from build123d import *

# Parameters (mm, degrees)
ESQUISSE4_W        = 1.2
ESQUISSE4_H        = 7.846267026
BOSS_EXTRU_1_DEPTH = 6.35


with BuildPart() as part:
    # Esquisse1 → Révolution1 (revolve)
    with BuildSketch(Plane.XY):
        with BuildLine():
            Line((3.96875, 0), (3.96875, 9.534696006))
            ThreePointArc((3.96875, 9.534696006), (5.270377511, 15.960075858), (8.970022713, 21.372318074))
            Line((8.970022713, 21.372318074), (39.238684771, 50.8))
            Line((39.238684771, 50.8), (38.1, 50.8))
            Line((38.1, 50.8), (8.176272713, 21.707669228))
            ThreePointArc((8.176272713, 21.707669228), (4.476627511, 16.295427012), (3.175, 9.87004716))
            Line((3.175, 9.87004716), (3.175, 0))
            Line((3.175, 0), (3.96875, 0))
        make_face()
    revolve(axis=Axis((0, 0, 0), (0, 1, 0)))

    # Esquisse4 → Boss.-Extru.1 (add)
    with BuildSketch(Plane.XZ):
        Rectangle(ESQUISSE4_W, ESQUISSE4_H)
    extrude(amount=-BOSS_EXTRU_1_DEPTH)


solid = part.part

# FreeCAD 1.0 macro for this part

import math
import FreeCAD as App
import Part
import Sketcher
from FreeCAD import Vector
Q = App.Units.Quantity

doc = App.newDocument("Part")
body = doc.addObject("PartDesign::Body", "Body")

sketch1 = body.newObject("Sketcher::SketchObject", "Sketch")
sketch1.AttachmentSupport = (doc.getObject("XY_Plane"), [""])
sketch1.MapMode = "FlatFace"
sketch1.addGeometry([
    Part.LineSegment(Vector(4, 0, 0), Vector(4, 9.5, 0)),
    Part.ArcOfCircle(Part.Circle(Vector(20.5, 9.5, 0), Vector(0, 0, 1), 16.5), math.radians(134), math.radians(180)),
    Part.LineSegment(Vector(9, 21.4, 0), Vector(39.2, 50.8, 0)),
    Part.LineSegment(Vector(39.2, 50.8, 0), Vector(38.1, 50.8, 0)),
    Part.LineSegment(Vector(38.1, 50.8, 0), Vector(8.2, 21.7, 0)),
    Part.ArcOfCircle(Part.Circle(Vector(19.7, 9.9, 0), Vector(0, 0, 1), 16.5), math.radians(134), math.radians(180)),
    Part.LineSegment(Vector(3.2, 9.9, 0), Vector(3.2, 0, 0)),
    Part.LineSegment(Vector(3.2, 0, 0), Vector(4, 0, 0)),
], False)
sketch1.addConstraint([
    Sketcher.Constraint("Tangent", 0, 2, 1, 2),
    Sketcher.Constraint("Tangent", 1, 1, 2, 1),
    Sketcher.Constraint("Coincident", 2, 2, 3, 1),
    Sketcher.Constraint("Coincident", 3, 2, 4, 1),
    Sketcher.Constraint("Tangent", 4, 2, 5, 1),
    Sketcher.Constraint("Tangent", 5, 2, 6, 1),
    Sketcher.Constraint("Coincident", 6, 2, 7, 1),
    Sketcher.Constraint("Coincident", 7, 2, 0, 1),
    Sketcher.Constraint("Vertical", 0),
    Sketcher.Constraint("Horizontal", 3),
    Sketcher.Constraint("Vertical", 6),
    Sketcher.Constraint("Horizontal", 7),
    Sketcher.Constraint("Equal", 1, 5),
    Sketcher.Constraint("PointOnObject", 6, 2, -1),
    Sketcher.Constraint("Parallel", 2, 4),
    Sketcher.Constraint("Radius", 1, Q("0.65 in")),
    Sketcher.Constraint("DistanceY", -1, 1, 2, 2, Q("2 in")),
    Sketcher.Constraint("DistanceX", -1, 1, 3, 2, Q("1.5 in")),
    Sketcher.Constraint("DistanceX", 7, 1, 7, 2, Q("0.03125 in")),
    Sketcher.Constraint("DistanceX", -1, 1, 5, 3, Q("0.775 in")),
    Sketcher.Constraint("Distance", 2, Q("42.215878 mm")),
    Sketcher.Constraint("DistanceX", 3, 2, 3, 1, Q("1.138685 mm")),
])
revolution = body.newObject("PartDesign::Revolution", "Revolution")
revolution.Profile = sketch1
revolution.ReferenceAxis = (sketch1, ["V_Axis"])
revolution.Angle = 360

sketch2 = body.newObject("Sketcher::SketchObject", "Sketch001")
sketch2.AttachmentSupport = (doc.getObject("XZ_Plane"), [""])
sketch2.MapMode = "FlatFace"
sketch2.addGeometry([
    Part.LineSegment(Vector(-0.6, 3.9, 0), Vector(-0.6, -3.9, 0)),
    Part.LineSegment(Vector(-0.6, -3.9, 0), Vector(0.6, -3.9, 0)),
    Part.LineSegment(Vector(0.6, -3.9, 0), Vector(0.6, 3.9, 0)),
    Part.LineSegment(Vector(0.6, 3.9, 0), Vector(-0.6, 3.9, 0)),
], False)
sketch2.addConstraint([
    Sketcher.Constraint("Coincident", 0, 2, 1, 1),
    Sketcher.Constraint("Coincident", 1, 2, 2, 1),
    Sketcher.Constraint("Coincident", 2, 2, 3, 1),
    Sketcher.Constraint("Coincident", 3, 2, 0, 1),
    Sketcher.Constraint("Vertical", 0),
    Sketcher.Constraint("Horizontal", 1),
    Sketcher.Constraint("Vertical", 2),
    Sketcher.Constraint("Horizontal", 3),
    Sketcher.Constraint("Symmetric", 0, 2, 2, 2, -1, 1),
    Sketcher.Constraint("DistanceX", 1, 1, 1, 2, Q("1.2 mm")),
    Sketcher.Constraint("DistanceY", 0, 2, 0, 1, Q("7.846267 mm")),
])
pad1 = body.newObject("PartDesign::Pad", "Pad")
pad1.Profile = sketch2
pad1.Length = Q("0.25 in")
pad1.Reversed = True

doc.recompute()
